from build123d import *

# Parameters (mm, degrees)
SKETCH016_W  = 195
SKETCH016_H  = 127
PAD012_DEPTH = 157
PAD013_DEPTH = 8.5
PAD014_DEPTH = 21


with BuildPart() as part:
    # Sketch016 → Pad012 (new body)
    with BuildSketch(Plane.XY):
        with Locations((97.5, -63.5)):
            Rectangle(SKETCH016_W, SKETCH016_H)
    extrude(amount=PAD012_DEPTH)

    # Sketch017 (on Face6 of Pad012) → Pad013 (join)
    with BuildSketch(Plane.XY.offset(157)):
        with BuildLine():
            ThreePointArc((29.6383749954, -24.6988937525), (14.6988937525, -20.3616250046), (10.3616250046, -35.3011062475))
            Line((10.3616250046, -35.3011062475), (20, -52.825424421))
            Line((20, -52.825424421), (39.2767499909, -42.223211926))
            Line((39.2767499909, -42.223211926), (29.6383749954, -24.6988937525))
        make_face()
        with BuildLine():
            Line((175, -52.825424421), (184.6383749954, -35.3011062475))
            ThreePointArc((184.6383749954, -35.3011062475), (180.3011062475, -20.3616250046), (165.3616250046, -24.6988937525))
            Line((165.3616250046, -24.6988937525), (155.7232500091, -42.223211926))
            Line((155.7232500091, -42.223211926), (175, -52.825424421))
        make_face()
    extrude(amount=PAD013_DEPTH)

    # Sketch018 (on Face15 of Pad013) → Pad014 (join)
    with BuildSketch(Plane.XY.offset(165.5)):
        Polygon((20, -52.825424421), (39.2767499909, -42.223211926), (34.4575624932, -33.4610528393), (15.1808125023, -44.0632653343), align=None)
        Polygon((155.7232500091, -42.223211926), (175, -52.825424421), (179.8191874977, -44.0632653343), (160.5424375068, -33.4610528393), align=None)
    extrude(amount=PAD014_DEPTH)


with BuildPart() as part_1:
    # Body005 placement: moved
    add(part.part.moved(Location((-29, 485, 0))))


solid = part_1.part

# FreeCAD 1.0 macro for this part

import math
import FreeCAD as App
import Part
import Sketcher
from FreeCAD import Vector


def add_polygon(sketch, points):
    """Adds a closed chain of lines whose ends are joined by coincident constraints."""
    first, n = sketch.GeometryCount, len(points)
    for a, b in zip(points, points[1:] + points[:1]):
        sketch.addGeometry(Part.LineSegment(App.Vector(*a, 0), App.Vector(*b, 0)), False)
    for i in range(n):
        sketch.addConstraint(Sketcher.Constraint("Coincident", first + i, 2, first + (i + 1) % n, 1))

doc = App.newDocument("Part")
params = doc.addObject("Spreadsheet::Sheet", "Params")
for row, (alias, value) in enumerate([
    ("sketch1_width", "195 mm"),
    ("sketch1_height", "127 mm"),
    ("pad1_length", "157 mm"),
    ("sketch2_radius", "11 mm"),
    ("sketch2_length", "20 mm"),
    ("pad2_length", "8.5 mm"),
    ("sketch3_length", "22 mm"),
    ("sketch3_length2", "10 mm"),
    ("pad3_length", "21 mm"),
], start=1):
    params.set(f"A{row}", alias)
    params.set(f"B{row}", "=" + value)
    params.setAlias(f"B{row}", alias)

body = doc.addObject("PartDesign::Body", "Body")

sketch1 = doc.addObject("Sketcher::SketchObject", "Sketch")
body.addObject(sketch1)
sketch1.AttachmentSupport = (doc.XY_Plane, [""])
sketch1.MapMode = "FlatFace"
add_polygon(sketch1, [(0, 0), (0, -127), (195, -127), (195, 0)])
sketch1.addConstraint([
    Sketcher.Constraint("Vertical", 0),
    Sketcher.Constraint("Horizontal", 1),
    Sketcher.Constraint("Vertical", 2),
    Sketcher.Constraint("Horizontal", 3),
    Sketcher.Constraint("Coincident", 3, 2, -1, 1),
    Sketcher.Constraint("DistanceX", 1, 1, 1, 2, 195.0),
    Sketcher.Constraint("DistanceY", 0, 2, 0, 1, 127.0),
])
sketch1.setExpression("Constraints[9]", "Params.sketch1_width")
sketch1.setExpression("Constraints[10]", "Params.sketch1_height")
pad1 = doc.addObject("PartDesign::Pad", "Pad")
body.addObject(pad1)
pad1.Profile = sketch1
pad1.setExpression("Length", "Params.pad1_length")

sketch2 = doc.addObject("Sketcher::SketchObject", "Sketch001")
body.addObject(sketch2)
sketch2.AttachmentSupport = (doc.XY_Plane, [""])
sketch2.MapMode = "FlatFace"
sketch2.AttachmentOffset = App.Placement(Vector(0, 0, 157), App.Rotation())
sketch2.addGeometry([
    Part.ArcOfCircle(Part.Circle(Vector(20, -30, 0), Vector(0, 0, 1), 11), math.radians(28.810794), math.radians(208.810794)),
    Part.LineSegment(Vector(10.361625, -35.301106, 0), Vector(20, -52.825424, 0)),
    Part.LineSegment(Vector(20, -52.825424, 0), Vector(39.27675, -42.223212, 0)),
    Part.LineSegment(Vector(39.27675, -42.223212, 0), Vector(29.638375, -24.698894, 0)),
    Part.LineSegment(Vector(175, -52.825424, 0), Vector(184.638375, -35.301106, 0)),
    Part.ArcOfCircle(Part.Circle(Vector(175, -30, 0), Vector(0, 0, 1), 11), math.radians(-28.810794), math.radians(151.189206)),
    Part.LineSegment(Vector(165.361625, -24.698894, 0), Vector(155.72325, -42.223212, 0)),
    Part.LineSegment(Vector(155.72325, -42.223212, 0), Vector(175, -52.825424, 0)),
], False)
sketch2.addConstraint([
    Sketcher.Constraint("Tangent", 0, 2, 1, 1),
    Sketcher.Constraint("Coincident", 1, 2, 2, 1),
    Sketcher.Constraint("Coincident", 2, 2, 3, 1),
    Sketcher.Constraint("Tangent", 3, 2, 0, 1),
    Sketcher.Constraint("Tangent", 4, 2, 5, 1),
    Sketcher.Constraint("Tangent", 5, 2, 6, 1),
    Sketcher.Constraint("Coincident", 6, 2, 7, 1),
    Sketcher.Constraint("Coincident", 7, 2, 4, 1),
    Sketcher.Constraint("Equal", 0, 5),
    Sketcher.Constraint("Perpendicular", 1, 2),
    Sketcher.Constraint("Perpendicular", 2, 3),
    Sketcher.Constraint("Parallel", 4, 6),
    Sketcher.Constraint("Perpendicular", 6, 7),
    Sketcher.Constraint("Horizontal", 0, 3, 5, 3),
    Sketcher.Constraint("Horizontal", 0, 2, 4, 2),
    Sketcher.Constraint("Horizontal", 2, 2, 6, 2),
    Sketcher.Constraint("Vertical", 0, 3, 1, 2),
    Sketcher.Constraint("Radius", 0, 11.0),
    Sketcher.Constraint("Distance", 1, 20.0),
    Sketcher.Constraint("DistanceX", -1, 1, 0, 3, 20.0),
    Sketcher.Constraint("DistanceY", 0, 3, -1, 1, 30.0),
    Sketcher.Constraint("DistanceX", -1, 1, 5, 3, 175.0),
])
sketch2.setExpression("Constraints[17]", "Params.sketch2_radius")
sketch2.setExpression("Constraints[18]", "Params.sketch2_length")
pad2 = doc.addObject("PartDesign::Pad", "Pad001")
body.addObject(pad2)
pad2.Profile = sketch2
pad2.setExpression("Length", "Params.pad2_length")

sketch3 = doc.addObject("Sketcher::SketchObject", "Sketch002")
body.addObject(sketch3)
sketch3.AttachmentSupport = (doc.XY_Plane, [""])
sketch3.MapMode = "FlatFace"
sketch3.AttachmentOffset = App.Placement(Vector(0, 0, 165.5), App.Rotation())
add_polygon(sketch3, [(20, -52.825424), (39.27675, -42.223212), (34.457562, -33.461053), (15.180813, -44.063265)])
add_polygon(sketch3, [(155.72325, -42.223212), (175, -52.825424), (179.819187, -44.063265), (160.542438, -33.461053)])
sketch3.addConstraint([
    Sketcher.Constraint("Perpendicular", 0, 1),
    Sketcher.Constraint("Perpendicular", 1, 2),
    Sketcher.Constraint("Perpendicular", 2, 3),
    Sketcher.Constraint("Perpendicular", 4, 5),
    Sketcher.Constraint("Perpendicular", 5, 6),
    Sketcher.Constraint("Perpendicular", 6, 7),
    Sketcher.Constraint("Horizontal", 3, 2, 4, 2),
    Sketcher.Constraint("Horizontal", 2, 2, 5, 2),
    Sketcher.Constraint("Horizontal", 1, 2, 6, 2),
    Sketcher.Constraint("Equal", 2, 4),
    Sketcher.Constraint("Distance", 0, 22.0),
    Sketcher.Constraint("Distance", 1, 10.0),
    Sketcher.Constraint("DistanceX", -1, 1, 3, 2, 20.0),
    Sketcher.Constraint("DistanceX", -1, 1, 4, 2, 175.0),
    Sketcher.Constraint("DistanceX", 0, 2, 7, 2, 116.4465),
    Sketcher.Constraint("DistanceY", 0, 2, -1, 1, 42.223212),
])
sketch3.setExpression("Constraints[18]", "Params.sketch3_length")
sketch3.setExpression("Constraints[19]", "Params.sketch3_length2")
pad3 = doc.addObject("PartDesign::Pad", "Pad002")
body.addObject(pad3)
pad3.Profile = sketch3
pad3.setExpression("Length", "Params.pad3_length")
body2 = doc.addObject("PartDesign::Body", "Body001")
doc.recompute()

body.Placement = App.Placement(Vector(-29, 485, 0), App.Rotation(Vector(0, 0, 1), 0))
boolean = doc.addObject("PartDesign::Boolean", "Boolean")
body2.addObject(boolean)
boolean.Type = "Fuse"
boolean.addObjects([body])

doc.recompute()
